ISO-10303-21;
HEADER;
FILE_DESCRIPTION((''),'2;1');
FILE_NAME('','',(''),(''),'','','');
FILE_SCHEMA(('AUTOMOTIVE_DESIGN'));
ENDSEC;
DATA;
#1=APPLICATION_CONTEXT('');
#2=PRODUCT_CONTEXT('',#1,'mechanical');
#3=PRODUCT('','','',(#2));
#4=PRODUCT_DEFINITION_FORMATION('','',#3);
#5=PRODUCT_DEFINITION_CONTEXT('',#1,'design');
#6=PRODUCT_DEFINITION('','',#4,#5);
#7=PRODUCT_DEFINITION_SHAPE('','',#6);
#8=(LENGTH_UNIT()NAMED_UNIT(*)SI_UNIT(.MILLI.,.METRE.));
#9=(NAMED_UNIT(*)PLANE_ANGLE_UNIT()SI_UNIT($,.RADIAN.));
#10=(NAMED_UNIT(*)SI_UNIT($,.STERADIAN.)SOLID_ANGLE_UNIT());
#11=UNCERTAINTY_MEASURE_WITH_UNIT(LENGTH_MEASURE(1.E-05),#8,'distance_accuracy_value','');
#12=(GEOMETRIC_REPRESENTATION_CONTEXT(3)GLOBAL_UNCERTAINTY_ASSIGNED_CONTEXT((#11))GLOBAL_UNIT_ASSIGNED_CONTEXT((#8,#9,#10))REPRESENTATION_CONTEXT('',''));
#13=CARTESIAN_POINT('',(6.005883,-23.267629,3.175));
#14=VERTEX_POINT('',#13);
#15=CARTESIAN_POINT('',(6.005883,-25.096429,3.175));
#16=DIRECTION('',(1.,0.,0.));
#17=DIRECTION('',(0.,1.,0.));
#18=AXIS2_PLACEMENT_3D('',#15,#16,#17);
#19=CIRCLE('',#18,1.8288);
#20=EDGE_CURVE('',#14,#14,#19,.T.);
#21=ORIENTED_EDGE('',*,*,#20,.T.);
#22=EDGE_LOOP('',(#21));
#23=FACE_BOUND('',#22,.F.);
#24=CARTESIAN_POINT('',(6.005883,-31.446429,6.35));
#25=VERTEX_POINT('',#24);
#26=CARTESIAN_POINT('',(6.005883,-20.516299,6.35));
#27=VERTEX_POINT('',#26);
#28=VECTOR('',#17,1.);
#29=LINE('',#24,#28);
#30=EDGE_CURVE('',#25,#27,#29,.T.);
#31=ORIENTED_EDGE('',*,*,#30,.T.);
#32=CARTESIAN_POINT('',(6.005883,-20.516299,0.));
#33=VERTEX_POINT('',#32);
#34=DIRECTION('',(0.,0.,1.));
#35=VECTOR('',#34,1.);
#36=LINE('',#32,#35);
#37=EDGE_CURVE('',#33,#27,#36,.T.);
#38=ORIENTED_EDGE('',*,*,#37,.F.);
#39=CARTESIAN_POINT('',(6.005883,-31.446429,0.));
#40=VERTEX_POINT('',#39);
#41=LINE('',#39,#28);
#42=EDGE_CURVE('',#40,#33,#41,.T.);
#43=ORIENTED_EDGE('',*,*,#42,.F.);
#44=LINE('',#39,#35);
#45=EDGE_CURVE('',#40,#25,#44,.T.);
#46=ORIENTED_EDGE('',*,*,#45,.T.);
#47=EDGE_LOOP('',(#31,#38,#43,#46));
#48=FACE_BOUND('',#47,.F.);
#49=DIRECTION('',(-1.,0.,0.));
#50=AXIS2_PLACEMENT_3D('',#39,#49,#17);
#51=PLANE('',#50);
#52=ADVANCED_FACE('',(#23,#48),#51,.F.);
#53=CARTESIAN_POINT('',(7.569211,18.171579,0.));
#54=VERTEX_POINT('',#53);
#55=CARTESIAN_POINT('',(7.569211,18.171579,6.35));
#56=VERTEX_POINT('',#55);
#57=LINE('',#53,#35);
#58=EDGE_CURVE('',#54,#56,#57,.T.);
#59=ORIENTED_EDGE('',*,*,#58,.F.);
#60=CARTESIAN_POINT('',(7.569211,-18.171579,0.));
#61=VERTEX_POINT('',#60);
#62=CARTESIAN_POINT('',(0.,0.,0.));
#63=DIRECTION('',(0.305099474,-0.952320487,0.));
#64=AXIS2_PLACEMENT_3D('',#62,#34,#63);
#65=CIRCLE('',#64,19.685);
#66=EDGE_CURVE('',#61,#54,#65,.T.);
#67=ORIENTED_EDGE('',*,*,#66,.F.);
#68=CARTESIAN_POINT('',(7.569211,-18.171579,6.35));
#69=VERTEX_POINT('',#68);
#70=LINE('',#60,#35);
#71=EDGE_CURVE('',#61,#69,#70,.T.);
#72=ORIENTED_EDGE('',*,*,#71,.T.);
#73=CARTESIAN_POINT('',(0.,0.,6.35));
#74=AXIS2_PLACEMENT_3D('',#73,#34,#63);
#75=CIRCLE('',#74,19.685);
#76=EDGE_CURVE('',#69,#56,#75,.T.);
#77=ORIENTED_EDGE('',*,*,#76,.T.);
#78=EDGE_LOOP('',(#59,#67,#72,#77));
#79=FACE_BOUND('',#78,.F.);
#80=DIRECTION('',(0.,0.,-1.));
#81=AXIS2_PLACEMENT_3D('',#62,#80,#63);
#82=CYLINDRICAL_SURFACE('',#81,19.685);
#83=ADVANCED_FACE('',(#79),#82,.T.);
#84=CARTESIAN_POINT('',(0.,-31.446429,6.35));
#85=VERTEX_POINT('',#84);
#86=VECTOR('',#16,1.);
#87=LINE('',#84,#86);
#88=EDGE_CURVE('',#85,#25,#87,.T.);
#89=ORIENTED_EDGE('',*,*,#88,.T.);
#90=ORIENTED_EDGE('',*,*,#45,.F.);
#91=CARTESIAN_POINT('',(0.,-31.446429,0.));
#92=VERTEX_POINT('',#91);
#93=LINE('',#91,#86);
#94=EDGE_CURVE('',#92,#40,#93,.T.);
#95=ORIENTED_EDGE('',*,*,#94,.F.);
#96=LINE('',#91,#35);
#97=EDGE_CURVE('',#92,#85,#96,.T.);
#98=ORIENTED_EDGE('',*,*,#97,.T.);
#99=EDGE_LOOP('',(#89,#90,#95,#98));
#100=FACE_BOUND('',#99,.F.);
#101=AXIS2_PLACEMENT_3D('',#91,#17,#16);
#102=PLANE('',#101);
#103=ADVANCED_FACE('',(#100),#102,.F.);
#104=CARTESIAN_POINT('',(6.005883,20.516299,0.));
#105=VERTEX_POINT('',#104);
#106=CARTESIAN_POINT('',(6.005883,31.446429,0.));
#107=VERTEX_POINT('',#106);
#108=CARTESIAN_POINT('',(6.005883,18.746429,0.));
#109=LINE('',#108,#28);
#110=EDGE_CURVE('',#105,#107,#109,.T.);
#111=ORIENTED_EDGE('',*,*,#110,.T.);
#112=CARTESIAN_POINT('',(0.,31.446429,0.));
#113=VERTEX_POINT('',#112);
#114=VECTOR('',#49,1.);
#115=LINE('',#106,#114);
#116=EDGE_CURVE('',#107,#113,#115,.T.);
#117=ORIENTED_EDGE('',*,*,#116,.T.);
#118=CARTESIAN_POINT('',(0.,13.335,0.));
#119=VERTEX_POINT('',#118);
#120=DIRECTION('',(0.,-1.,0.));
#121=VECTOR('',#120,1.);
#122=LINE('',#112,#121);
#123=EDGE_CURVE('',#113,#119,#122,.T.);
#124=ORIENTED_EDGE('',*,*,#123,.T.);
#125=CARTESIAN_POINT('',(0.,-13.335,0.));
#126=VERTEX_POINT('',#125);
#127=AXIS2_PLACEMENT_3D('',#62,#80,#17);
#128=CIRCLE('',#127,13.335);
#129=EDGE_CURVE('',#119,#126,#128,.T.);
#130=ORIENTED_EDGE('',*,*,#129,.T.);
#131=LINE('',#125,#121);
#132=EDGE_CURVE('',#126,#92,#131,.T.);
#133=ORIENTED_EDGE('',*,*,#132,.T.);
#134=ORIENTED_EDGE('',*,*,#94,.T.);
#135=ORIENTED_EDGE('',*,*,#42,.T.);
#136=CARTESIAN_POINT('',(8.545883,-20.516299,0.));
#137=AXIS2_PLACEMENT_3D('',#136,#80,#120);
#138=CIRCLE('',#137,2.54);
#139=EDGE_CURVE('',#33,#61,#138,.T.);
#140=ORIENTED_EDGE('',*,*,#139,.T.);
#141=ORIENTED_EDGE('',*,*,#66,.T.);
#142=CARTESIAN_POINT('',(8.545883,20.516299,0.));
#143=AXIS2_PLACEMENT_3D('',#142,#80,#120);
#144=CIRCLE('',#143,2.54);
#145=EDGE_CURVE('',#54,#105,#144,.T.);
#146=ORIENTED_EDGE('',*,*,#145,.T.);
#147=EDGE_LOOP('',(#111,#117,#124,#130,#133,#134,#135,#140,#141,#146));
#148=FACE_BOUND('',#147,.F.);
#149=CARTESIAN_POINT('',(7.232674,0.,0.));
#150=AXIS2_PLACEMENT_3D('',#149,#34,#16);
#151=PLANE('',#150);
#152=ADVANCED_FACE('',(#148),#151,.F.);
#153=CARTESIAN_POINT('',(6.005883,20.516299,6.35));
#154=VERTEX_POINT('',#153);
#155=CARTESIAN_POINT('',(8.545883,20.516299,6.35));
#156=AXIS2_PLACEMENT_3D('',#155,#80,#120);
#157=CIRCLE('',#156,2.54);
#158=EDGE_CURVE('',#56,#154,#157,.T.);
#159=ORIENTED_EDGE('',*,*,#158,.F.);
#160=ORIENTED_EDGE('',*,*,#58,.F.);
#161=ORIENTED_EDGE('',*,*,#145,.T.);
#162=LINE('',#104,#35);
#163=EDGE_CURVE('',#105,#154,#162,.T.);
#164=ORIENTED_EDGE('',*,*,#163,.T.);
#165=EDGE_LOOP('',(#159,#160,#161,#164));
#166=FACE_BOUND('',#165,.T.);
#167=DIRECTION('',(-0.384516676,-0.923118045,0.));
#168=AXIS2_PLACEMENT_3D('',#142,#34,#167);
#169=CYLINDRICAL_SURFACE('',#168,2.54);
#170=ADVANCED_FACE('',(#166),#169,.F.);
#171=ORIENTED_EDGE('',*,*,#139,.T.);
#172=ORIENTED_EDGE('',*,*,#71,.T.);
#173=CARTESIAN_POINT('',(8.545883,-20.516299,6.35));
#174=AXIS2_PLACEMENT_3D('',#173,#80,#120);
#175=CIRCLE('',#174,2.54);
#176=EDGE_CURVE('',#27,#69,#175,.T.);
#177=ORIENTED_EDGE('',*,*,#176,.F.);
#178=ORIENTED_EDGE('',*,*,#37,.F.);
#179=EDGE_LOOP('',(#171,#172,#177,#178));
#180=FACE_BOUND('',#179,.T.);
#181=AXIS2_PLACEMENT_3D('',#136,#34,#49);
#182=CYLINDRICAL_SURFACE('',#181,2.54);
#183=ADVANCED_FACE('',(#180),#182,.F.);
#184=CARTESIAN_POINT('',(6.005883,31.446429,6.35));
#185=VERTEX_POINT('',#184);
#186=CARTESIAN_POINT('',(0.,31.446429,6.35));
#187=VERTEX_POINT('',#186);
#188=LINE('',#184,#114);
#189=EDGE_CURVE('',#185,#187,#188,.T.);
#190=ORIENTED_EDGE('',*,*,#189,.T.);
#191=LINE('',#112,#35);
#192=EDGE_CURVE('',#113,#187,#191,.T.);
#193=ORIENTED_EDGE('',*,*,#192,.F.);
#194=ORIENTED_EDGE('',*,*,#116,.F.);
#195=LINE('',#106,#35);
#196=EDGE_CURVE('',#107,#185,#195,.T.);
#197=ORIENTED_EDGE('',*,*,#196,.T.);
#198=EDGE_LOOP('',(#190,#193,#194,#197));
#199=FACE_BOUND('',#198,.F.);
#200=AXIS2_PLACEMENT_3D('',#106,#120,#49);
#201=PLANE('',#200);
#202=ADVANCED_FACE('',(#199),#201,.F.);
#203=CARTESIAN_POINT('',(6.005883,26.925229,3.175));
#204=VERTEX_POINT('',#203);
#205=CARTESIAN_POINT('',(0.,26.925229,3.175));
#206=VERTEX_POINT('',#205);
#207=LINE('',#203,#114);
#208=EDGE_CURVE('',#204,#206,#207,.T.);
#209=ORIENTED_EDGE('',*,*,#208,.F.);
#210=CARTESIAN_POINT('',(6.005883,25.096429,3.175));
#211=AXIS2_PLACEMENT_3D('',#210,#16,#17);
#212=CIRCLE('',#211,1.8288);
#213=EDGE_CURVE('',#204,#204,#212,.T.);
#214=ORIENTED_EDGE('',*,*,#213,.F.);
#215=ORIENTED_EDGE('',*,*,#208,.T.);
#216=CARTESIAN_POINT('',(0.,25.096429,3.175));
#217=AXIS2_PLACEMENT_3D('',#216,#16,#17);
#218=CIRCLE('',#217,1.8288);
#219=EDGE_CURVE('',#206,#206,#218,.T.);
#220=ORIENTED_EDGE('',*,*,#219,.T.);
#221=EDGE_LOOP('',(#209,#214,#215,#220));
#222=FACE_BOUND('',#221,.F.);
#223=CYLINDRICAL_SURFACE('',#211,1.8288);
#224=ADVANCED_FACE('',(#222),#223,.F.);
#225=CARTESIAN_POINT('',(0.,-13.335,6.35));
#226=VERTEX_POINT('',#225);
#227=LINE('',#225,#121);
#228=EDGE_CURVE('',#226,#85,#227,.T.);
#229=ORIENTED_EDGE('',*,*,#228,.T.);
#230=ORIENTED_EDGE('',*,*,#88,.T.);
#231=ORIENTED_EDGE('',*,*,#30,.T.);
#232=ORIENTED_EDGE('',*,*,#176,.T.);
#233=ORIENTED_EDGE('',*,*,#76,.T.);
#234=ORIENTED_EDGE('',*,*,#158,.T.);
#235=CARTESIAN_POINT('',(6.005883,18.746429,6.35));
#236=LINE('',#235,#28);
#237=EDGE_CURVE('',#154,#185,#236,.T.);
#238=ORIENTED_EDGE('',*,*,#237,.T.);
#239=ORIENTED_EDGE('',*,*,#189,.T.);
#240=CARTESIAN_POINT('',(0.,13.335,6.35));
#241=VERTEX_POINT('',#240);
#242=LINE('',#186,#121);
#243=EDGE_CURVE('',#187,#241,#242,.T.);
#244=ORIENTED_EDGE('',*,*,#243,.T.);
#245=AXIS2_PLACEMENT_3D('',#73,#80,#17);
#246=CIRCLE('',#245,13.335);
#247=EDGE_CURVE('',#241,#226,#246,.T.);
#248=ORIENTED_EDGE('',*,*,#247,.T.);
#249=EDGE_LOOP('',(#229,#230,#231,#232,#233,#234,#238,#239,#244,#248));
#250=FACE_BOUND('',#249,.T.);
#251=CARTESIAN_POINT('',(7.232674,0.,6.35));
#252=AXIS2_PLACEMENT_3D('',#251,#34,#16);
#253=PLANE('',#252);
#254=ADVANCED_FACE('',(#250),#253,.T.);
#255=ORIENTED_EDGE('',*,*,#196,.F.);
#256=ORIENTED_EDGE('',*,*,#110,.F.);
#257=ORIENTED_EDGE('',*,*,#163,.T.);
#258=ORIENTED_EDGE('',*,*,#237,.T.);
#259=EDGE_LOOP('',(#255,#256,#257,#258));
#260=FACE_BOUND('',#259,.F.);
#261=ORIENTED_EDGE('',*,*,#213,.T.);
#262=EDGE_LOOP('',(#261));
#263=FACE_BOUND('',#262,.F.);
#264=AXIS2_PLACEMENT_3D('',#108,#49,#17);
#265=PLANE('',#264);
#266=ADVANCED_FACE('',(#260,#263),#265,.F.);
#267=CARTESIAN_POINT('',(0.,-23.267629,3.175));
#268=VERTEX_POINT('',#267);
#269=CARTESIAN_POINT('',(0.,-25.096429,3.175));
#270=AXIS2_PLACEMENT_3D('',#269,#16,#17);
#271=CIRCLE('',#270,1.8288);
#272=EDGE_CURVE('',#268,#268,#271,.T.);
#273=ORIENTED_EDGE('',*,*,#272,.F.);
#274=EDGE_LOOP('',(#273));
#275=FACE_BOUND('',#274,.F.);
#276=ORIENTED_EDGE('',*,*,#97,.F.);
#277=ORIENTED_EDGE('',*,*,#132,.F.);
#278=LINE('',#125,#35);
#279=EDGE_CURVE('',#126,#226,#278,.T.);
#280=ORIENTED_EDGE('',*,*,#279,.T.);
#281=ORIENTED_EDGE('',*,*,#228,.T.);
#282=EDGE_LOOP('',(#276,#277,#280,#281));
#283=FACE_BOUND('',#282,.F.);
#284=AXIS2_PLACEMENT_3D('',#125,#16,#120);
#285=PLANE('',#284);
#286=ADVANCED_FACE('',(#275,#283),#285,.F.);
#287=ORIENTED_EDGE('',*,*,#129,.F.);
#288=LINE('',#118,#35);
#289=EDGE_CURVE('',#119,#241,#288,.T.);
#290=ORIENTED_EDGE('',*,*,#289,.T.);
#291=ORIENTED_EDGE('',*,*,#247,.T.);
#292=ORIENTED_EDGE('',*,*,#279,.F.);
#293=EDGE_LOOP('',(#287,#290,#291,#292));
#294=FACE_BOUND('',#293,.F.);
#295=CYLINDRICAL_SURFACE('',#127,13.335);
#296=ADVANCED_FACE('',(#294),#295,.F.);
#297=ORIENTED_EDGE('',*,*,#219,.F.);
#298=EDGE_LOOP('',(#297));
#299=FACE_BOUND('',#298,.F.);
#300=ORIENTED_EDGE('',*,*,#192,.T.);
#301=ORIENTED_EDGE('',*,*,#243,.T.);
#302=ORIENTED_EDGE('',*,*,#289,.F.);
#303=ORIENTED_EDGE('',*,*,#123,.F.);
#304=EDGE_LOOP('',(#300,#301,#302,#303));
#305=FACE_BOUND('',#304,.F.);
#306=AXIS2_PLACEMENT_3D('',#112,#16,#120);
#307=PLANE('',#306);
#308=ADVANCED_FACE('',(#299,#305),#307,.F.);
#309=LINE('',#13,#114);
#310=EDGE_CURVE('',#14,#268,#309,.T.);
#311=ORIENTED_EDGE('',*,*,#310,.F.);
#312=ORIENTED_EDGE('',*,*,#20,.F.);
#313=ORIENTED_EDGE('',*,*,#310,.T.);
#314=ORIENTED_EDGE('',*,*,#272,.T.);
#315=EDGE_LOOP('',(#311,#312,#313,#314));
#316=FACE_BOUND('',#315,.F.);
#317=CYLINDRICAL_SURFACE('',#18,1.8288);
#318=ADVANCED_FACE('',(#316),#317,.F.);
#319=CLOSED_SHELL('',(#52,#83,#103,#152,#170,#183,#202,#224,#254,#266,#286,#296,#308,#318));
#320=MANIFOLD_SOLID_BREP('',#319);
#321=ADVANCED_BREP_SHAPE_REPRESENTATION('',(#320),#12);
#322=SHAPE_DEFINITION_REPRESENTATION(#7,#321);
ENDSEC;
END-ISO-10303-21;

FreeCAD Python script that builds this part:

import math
import FreeCAD as App
import Part
import Sketcher

V = App.Vector
Q = App.Units.Quantity


def edges_at(feature, points):
    """Names of the edges that pass closest to the given points."""
    edges = feature.Shape.Edges
    near = lambda p: min(range(len(edges)), key=lambda i: edges[i].distToShape(Part.Vertex(*p))[0])
    return sorted({f"Edge{near(p) + 1}" for p in points})

doc = App.newDocument("Part")
body = doc.addObject("PartDesign::Body", "Body")

sketch1 = body.newObject("Sketcher::SketchObject", "Sketch")
sketch1.AttachmentSupport = (doc.getObject("XY_Plane"), [""])
sketch1.MapMode = "FlatFace"
sketch1.addGeometry([
    Part.ArcOfCircle(Part.Circle(V(0, 0, 0), V(0, 0, 1), 13.335), math.radians(-90), math.radians(90)),
    Part.LineSegment(V(0, -13.335, 0), V(0, -31.446429, 0)),
    Part.LineSegment(V(0, -31.446429, 0), V(6.005883, -31.446429, 0)),
    Part.LineSegment(V(6.005883, -31.446429, 0), V(6.005883, -18.746429, 0)),
    Part.ArcOfCircle(Part.Circle(V(0, 0, 0), V(0, 0, 1), 19.685), math.radians(-72.235851), math.radians(72.235851)),
    Part.LineSegment(V(6.005883, 18.746429, 0), V(6.005883, 31.446429, 0)),
    Part.LineSegment(V(6.005883, 31.446429, 0), V(0, 31.446429, 0)),
    Part.LineSegment(V(0, 31.446429, 0), V(0, 13.335, 0)),
], False)
sketch1.addConstraint([
    Sketcher.Constraint("Coincident", 0, 1, 1, 1),
    Sketcher.Constraint("Coincident", 1, 2, 2, 1),
    Sketcher.Constraint("Coincident", 2, 2, 3, 1),
    Sketcher.Constraint("Coincident", 3, 2, 4, 1),
    Sketcher.Constraint("Coincident", 4, 2, 5, 1),
    Sketcher.Constraint("Coincident", 5, 2, 6, 1),
    Sketcher.Constraint("Coincident", 6, 2, 7, 1),
    Sketcher.Constraint("Coincident", 7, 2, 0, 2),
    Sketcher.Constraint("Vertical", 1),
    Sketcher.Constraint("Horizontal", 2),
    Sketcher.Constraint("Vertical", 3),
    Sketcher.Constraint("Vertical", 5),
    Sketcher.Constraint("Horizontal", 6),
    Sketcher.Constraint("Vertical", 7),
    Sketcher.Constraint("Coincident", 0, 3, -1, 1),
    Sketcher.Constraint("Coincident", 4, 3, -1, 1),
    Sketcher.Constraint("Symmetric", 1, 2, 6, 2, -1, 1),
    Sketcher.Constraint("PointOnObject", 0, 1, -2),
    Sketcher.Constraint("Vertical", 3, 2, 4, 2),
    Sketcher.Constraint("DistanceY", 3, 1, 3, 2, Q("0.5 in")),
    Sketcher.Constraint("Radius", 0, Q("0.525 in")),
    Sketcher.Constraint("Radius", 4, Q("0.775 in")),
    Sketcher.Constraint("DistanceY", 1, 2, 1, 1, 18.111429),
])
pad1 = body.newObject("PartDesign::Pad", "Pad")
pad1.Profile = sketch1
pad1.Length = Q("0.25 in")

sketch2 = body.newObject("Sketcher::SketchObject", "Sketch001")
sketch2.AttachmentSupport = (doc.getObject("YZ_Plane"), [""])
sketch2.MapMode = "FlatFace"
sketch2.AttachmentOffset = App.Placement(V(0, 0, 6.005883), App.Rotation())
sketch2.addGeometry([
    Part.Circle(V(-25.096429, 3.175, 0), V(0, 0, 1), 1.8288),
    Part.Circle(V(25.096429, 3.175, 0), V(0, 0, 1), 1.8288),
], False)
sketch2.addConstraint([
    Sketcher.Constraint("Equal", 0, 1),
    Sketcher.Constraint("Symmetric", 0, 3, 1, 3, -2),
    Sketcher.Constraint("Diameter", 0, Q("0.144 in")),
    Sketcher.Constraint("DistanceY", -1, 1, 0, 3, Q("0.125 in")),
    Sketcher.Constraint("DistanceX", 0, 3, -1, 1, 25.096429),
])
pocket1 = body.newObject("PartDesign::Pocket", "Pocket")
pocket1.Profile = sketch2
pocket1.Type = "ThroughAll"
doc.recompute()

fillet = body.newObject("PartDesign::Fillet", "Fillet")
fillet.Base = (pocket1, edges_at(pocket1, [(6.006, -18.746, 3.175), (6.006, 18.746, 3.175)]))
fillet.Radius = Q("0.1 in")

doc.recompute()
